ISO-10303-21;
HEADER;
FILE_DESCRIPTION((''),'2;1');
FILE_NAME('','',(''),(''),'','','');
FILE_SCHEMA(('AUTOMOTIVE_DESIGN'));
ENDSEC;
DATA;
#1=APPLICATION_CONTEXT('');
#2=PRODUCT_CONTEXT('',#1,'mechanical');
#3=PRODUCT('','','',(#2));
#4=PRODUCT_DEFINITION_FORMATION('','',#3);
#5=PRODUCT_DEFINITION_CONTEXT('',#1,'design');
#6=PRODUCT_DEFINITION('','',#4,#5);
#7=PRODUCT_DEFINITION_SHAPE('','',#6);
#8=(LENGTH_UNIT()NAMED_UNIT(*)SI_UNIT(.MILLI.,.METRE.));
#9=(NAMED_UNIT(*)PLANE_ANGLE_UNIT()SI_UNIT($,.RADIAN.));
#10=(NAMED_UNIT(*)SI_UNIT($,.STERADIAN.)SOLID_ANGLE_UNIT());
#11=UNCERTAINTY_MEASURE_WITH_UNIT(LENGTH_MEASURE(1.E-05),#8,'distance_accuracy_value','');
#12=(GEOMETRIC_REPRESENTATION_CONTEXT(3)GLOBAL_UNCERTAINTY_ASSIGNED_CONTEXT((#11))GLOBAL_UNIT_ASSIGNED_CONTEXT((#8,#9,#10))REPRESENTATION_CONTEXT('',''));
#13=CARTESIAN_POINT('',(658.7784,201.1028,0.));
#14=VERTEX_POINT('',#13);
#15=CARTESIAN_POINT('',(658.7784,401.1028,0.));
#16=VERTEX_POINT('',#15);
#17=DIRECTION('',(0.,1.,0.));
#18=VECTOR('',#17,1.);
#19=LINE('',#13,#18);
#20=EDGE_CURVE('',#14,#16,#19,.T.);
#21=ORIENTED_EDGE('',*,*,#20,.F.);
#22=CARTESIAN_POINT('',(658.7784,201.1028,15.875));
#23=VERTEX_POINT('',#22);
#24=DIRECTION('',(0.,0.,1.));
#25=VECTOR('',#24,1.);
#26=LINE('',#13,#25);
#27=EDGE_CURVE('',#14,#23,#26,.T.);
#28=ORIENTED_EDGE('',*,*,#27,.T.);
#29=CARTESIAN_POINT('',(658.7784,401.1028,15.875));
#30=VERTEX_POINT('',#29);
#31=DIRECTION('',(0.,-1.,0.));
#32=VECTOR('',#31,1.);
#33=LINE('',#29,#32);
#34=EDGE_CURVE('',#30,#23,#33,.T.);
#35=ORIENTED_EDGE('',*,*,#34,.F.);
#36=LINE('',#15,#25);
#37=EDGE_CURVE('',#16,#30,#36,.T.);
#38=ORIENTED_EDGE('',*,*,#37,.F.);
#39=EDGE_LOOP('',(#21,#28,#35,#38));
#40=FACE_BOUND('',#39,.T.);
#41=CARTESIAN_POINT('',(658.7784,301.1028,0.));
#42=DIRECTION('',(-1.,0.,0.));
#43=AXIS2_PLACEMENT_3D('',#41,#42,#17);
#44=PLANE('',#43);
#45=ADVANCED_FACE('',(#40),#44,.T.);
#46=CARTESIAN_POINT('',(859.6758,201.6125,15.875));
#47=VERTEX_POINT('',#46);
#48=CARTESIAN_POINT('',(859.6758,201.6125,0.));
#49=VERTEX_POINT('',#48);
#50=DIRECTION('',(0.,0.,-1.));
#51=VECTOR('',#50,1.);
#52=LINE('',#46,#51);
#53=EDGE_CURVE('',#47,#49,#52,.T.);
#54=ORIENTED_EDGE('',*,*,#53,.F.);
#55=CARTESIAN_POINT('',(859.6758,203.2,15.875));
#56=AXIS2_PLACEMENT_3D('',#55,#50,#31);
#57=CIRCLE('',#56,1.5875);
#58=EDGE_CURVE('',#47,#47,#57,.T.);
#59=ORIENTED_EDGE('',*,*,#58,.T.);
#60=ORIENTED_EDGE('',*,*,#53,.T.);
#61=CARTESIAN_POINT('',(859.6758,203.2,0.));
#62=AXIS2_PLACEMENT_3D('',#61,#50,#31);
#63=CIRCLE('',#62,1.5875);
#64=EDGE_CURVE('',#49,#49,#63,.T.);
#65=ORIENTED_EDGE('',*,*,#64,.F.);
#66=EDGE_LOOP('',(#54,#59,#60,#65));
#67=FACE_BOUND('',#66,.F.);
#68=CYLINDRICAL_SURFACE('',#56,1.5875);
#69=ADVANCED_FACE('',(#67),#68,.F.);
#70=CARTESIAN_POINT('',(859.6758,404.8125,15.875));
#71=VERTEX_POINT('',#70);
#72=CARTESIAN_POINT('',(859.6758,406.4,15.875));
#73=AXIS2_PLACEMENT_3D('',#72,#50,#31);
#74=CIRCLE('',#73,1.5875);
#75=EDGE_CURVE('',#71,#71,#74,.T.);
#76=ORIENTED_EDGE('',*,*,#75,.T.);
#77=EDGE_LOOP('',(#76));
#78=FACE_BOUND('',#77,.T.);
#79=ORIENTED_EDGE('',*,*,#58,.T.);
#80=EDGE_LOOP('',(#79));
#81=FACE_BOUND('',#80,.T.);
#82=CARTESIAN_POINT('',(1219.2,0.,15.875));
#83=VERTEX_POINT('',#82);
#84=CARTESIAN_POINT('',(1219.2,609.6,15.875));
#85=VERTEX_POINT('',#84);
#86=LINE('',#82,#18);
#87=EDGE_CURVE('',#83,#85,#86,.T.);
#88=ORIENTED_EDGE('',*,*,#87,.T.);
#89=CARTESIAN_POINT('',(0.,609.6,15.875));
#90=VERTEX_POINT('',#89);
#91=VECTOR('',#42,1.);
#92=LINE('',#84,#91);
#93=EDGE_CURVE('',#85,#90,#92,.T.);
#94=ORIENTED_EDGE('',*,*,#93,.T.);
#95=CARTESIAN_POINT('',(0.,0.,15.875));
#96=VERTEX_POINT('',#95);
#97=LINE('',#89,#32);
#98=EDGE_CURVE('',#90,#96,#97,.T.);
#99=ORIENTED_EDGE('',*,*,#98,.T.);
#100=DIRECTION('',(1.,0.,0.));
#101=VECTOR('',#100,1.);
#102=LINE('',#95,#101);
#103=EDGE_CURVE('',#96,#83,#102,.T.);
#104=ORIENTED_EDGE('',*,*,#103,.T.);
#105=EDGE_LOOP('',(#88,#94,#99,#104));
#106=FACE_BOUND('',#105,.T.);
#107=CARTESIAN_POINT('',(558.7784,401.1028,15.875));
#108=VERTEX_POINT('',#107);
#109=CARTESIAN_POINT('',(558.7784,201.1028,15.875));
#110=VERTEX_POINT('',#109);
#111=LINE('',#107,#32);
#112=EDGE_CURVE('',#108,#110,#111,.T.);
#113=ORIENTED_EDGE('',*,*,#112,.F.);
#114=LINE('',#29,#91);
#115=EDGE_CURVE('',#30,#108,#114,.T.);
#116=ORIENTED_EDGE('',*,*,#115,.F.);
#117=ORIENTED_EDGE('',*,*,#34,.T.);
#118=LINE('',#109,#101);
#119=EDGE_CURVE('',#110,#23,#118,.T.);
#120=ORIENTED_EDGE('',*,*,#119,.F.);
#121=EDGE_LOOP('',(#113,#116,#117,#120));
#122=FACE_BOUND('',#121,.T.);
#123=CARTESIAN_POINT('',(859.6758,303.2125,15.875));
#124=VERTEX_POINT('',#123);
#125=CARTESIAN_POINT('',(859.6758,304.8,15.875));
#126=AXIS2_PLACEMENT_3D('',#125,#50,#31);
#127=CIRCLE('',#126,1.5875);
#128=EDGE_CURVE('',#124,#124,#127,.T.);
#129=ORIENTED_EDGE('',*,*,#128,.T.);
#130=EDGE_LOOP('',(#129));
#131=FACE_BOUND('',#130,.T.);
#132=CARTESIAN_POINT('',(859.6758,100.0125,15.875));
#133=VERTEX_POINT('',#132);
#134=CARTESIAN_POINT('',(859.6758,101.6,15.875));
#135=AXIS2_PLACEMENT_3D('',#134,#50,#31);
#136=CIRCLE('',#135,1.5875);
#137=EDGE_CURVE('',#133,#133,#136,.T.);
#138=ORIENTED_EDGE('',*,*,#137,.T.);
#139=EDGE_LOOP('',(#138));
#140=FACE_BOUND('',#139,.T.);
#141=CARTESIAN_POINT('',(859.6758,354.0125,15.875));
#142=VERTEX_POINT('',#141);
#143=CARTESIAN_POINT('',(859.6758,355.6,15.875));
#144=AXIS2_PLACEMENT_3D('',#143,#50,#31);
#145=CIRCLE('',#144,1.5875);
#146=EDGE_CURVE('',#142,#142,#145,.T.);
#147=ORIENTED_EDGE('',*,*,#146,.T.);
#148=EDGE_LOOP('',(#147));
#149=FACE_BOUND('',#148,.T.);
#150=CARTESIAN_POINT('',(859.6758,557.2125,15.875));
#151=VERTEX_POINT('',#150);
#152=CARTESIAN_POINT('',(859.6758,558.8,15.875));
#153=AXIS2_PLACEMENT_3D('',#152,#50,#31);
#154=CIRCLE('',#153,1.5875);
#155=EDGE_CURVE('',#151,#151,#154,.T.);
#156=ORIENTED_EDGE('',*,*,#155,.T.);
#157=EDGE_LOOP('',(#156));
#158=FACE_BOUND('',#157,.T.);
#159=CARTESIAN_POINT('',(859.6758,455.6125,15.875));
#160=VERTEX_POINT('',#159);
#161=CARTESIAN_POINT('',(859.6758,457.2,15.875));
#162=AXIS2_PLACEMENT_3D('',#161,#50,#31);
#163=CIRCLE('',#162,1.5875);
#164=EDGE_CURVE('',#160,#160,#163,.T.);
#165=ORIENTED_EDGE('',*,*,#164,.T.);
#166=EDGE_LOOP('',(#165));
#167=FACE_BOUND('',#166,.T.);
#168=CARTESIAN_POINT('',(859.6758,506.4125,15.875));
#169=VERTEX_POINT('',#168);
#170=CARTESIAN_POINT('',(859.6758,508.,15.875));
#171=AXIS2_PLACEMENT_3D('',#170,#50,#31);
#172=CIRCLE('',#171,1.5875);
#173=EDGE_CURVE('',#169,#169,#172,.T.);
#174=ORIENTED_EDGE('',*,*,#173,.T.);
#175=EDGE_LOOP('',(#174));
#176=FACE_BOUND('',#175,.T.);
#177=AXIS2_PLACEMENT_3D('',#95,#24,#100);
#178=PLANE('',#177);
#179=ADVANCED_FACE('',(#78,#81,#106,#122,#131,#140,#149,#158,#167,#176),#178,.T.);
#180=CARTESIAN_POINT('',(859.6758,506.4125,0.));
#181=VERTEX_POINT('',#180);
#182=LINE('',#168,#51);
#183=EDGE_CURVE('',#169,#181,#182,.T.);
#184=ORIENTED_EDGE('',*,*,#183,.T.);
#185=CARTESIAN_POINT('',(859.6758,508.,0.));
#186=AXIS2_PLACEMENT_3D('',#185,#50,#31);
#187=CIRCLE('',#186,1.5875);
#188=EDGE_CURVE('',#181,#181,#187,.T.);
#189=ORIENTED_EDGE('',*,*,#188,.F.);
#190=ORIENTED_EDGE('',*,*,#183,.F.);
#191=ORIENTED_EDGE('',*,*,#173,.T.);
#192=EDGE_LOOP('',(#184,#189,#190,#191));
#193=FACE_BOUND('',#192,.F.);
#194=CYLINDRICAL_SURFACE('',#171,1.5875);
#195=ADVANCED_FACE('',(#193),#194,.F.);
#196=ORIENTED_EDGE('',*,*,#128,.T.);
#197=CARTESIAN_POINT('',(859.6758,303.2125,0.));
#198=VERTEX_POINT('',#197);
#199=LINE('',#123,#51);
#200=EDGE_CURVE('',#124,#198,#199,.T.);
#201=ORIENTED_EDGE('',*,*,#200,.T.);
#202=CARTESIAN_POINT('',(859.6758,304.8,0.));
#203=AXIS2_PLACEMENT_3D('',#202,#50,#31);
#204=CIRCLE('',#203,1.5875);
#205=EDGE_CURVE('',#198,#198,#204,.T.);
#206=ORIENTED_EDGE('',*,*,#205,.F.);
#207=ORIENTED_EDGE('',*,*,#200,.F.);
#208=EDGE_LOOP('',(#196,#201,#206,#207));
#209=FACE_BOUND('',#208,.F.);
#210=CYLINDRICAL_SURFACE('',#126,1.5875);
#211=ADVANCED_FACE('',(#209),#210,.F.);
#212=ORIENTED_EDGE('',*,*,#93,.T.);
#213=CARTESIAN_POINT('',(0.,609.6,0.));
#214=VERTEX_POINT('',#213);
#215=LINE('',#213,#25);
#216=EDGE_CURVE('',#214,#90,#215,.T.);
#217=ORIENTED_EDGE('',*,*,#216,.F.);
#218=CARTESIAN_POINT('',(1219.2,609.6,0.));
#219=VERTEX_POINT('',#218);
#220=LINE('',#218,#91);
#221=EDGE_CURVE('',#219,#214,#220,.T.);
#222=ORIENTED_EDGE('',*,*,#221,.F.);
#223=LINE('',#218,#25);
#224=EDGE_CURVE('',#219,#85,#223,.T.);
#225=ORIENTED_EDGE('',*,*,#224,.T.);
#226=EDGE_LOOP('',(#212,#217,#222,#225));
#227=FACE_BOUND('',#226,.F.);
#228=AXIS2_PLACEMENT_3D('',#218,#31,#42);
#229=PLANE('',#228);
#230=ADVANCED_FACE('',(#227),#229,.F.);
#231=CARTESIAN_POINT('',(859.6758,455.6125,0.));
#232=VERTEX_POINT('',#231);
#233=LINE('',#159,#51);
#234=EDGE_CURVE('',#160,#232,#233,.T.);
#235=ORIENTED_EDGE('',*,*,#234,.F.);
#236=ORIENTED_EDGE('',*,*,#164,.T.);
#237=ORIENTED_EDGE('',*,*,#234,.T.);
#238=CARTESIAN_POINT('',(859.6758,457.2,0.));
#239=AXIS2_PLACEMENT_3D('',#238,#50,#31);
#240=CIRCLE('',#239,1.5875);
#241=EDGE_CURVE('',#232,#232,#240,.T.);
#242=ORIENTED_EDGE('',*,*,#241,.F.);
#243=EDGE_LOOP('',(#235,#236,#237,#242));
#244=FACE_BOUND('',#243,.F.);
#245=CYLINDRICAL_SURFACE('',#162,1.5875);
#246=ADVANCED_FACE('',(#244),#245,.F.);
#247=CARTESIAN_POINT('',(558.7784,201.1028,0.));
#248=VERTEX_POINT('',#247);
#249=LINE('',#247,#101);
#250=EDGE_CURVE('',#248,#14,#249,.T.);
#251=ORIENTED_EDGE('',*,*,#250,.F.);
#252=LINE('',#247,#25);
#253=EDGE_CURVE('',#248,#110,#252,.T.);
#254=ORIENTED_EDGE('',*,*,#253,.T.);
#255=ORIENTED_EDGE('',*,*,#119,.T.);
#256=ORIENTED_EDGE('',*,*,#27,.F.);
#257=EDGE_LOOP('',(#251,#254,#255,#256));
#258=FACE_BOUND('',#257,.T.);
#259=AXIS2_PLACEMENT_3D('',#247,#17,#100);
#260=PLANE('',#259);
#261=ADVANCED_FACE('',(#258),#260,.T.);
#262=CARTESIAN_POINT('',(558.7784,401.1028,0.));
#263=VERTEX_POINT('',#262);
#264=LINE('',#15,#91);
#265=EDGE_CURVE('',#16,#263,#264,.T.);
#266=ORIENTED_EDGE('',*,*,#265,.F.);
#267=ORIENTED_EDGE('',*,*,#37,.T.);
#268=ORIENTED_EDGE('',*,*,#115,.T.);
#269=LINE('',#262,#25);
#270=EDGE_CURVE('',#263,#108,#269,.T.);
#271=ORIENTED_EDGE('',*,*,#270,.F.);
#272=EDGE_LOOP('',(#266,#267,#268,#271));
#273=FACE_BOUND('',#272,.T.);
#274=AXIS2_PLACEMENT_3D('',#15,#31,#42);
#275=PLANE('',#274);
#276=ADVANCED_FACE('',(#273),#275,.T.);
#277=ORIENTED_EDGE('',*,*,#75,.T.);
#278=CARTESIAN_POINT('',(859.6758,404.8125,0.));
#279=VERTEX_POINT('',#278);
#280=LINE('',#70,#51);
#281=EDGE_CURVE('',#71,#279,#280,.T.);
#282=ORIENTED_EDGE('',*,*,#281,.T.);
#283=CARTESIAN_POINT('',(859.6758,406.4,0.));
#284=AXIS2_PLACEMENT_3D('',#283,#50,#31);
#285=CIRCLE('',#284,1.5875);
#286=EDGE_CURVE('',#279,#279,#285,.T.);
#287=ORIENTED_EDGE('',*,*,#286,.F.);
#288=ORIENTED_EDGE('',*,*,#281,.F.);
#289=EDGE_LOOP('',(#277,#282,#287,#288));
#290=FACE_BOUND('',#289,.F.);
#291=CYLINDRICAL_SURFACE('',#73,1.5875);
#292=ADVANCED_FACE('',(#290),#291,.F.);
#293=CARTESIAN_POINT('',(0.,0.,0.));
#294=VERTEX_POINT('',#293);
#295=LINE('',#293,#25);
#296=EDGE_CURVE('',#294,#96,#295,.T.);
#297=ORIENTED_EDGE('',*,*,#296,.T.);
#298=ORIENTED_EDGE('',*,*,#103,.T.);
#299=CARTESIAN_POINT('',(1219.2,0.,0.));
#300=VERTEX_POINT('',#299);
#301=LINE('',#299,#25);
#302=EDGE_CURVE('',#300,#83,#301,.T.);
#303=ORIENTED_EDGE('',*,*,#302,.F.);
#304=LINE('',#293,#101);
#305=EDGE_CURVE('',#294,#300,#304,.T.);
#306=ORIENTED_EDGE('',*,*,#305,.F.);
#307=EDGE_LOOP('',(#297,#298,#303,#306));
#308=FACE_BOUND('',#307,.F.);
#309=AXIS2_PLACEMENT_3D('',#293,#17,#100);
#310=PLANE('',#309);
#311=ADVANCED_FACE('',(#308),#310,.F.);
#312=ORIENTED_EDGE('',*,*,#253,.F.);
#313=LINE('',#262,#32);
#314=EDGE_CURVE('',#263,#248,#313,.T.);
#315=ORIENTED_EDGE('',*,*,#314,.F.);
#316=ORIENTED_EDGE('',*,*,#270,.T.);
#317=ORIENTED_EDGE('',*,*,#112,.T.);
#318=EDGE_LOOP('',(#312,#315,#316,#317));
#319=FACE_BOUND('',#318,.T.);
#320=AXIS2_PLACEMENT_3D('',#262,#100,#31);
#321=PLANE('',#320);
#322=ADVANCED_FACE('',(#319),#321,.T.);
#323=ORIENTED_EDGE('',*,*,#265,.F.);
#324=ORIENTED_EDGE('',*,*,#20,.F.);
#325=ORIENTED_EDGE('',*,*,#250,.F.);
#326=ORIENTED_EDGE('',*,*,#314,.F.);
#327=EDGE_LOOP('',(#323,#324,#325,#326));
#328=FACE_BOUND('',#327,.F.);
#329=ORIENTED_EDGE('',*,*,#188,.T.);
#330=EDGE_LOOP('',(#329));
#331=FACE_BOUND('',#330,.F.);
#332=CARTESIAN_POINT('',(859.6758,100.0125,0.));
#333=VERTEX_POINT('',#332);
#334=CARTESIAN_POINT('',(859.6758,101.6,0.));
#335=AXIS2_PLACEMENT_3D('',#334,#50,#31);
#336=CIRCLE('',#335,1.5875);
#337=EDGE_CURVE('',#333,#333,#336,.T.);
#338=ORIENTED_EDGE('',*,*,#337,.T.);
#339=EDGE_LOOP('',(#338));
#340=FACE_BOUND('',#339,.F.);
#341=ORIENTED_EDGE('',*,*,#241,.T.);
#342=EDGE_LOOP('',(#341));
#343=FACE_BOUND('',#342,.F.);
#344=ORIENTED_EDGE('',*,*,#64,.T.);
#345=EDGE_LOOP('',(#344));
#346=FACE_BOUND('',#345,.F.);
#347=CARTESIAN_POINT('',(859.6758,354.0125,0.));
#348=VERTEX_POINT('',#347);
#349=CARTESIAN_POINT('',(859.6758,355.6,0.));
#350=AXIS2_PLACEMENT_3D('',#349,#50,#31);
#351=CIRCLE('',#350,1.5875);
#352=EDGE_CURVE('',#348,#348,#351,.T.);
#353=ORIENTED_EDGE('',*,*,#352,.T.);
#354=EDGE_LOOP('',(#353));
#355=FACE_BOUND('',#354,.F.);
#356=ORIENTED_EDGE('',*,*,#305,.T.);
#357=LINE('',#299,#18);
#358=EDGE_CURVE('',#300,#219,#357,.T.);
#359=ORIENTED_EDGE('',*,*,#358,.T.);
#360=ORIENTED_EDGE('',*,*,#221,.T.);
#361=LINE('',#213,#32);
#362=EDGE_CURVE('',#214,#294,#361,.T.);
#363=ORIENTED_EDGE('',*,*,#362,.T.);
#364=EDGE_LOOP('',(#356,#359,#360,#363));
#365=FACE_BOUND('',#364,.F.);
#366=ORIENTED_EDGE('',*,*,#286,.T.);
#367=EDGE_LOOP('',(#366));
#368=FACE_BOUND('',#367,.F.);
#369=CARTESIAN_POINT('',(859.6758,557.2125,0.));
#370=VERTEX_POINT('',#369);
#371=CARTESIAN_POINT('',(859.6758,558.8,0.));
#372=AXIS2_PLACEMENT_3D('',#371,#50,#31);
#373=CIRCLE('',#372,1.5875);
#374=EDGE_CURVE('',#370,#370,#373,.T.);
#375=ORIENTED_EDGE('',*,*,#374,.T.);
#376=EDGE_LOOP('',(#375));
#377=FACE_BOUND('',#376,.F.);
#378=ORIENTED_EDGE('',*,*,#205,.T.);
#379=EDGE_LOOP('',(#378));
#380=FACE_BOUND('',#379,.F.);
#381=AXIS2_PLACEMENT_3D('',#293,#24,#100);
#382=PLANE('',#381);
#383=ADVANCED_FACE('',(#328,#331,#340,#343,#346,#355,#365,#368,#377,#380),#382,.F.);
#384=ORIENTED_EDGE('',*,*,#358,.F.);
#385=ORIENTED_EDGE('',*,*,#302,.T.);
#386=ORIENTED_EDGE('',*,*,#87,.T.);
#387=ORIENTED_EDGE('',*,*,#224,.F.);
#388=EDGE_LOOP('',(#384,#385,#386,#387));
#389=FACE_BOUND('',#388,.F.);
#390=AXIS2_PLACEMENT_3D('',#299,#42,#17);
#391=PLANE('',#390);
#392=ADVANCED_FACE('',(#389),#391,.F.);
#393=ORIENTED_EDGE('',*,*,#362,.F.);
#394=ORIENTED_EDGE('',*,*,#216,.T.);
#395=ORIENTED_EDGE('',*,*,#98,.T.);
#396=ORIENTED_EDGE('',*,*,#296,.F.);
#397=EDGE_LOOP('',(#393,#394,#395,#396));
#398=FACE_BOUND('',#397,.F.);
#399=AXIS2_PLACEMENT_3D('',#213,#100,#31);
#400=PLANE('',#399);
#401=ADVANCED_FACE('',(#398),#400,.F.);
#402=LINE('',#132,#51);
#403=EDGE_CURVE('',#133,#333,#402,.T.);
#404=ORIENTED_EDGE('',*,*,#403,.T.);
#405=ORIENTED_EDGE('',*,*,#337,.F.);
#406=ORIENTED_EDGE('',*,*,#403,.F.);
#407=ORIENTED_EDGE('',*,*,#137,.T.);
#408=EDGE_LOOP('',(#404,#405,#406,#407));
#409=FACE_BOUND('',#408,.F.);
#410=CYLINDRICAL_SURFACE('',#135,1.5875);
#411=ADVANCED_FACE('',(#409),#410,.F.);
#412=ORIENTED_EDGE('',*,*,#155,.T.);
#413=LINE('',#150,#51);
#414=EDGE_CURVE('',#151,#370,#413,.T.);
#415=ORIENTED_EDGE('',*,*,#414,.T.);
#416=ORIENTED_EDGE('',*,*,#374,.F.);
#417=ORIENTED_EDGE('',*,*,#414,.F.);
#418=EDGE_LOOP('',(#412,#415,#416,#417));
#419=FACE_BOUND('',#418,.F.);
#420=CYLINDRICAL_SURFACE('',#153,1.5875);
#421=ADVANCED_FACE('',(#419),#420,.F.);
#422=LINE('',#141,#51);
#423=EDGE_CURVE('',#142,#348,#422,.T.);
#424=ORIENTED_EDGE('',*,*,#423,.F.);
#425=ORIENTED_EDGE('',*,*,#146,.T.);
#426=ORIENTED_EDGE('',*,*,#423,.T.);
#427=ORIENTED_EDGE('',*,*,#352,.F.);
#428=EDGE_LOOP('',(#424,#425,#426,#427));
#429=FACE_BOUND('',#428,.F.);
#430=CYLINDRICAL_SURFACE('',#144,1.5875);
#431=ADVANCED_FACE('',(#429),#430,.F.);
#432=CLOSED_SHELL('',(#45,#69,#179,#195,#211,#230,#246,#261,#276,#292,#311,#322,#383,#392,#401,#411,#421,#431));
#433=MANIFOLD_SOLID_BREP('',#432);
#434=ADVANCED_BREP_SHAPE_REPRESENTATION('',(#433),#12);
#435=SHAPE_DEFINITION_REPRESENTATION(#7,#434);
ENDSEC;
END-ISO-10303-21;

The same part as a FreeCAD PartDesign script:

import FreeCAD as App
import Part
import Sketcher
from FreeCAD import Vector
Q = App.Units.Quantity

doc = App.newDocument("Part")
params = doc.addObject("Spreadsheet::Sheet", "Params")
for row, (alias, value) in enumerate([
    ("sketch1_width", "48 in"),
    ("sketch1_height", "24 in"),
    ("sketch1_width2", "3.937 in"),
    ("pad1_length", "0.625 in"),
    ("sketch2_diameter", "0.125 in"),
    ("hole_diameter", "0.125 in"),
], start=1):
    params.set(f"A{row}", alias)
    params.set(f"B{row}", "=" + value)
    params.setAlias(f"B{row}", alias)

body = doc.addObject("PartDesign::Body", "Body")

# Sketch on XY plane
sketch1 = body.newObject("Sketcher::SketchObject", "Sketch")
sketch1.AttachmentSupport = (doc.getObject("XY_Plane"), [""])
sketch1.MapMode = "FlatFace"
sketch1.addGeometry([
    Part.LineSegment(Vector(0, 610, 0), Vector(0, 0, 0)),  # 0
    Part.LineSegment(Vector(0, 0, 0), Vector(1219, 0, 0)),  # 1
    Part.LineSegment(Vector(1219, 0, 0), Vector(1219, 610, 0)),  # 2
    Part.LineSegment(Vector(1219, 610, 0), Vector(0, 610, 0)),  # 3
    Part.LineSegment(Vector(659, 401, 0), Vector(659, 201, 0)),  # 4
    Part.LineSegment(Vector(659, 201, 0), Vector(559, 201, 0)),  # 5
    Part.LineSegment(Vector(559, 201, 0), Vector(559, 401, 0)),  # 6
    Part.LineSegment(Vector(559, 401, 0), Vector(659, 401, 0)),  # 7
], False)
sketch1.addConstraint([
    Sketcher.Constraint("Coincident", 0, 2, 1, 1),
    Sketcher.Constraint("Coincident", 1, 2, 2, 1),
    Sketcher.Constraint("Coincident", 2, 2, 3, 1),
    Sketcher.Constraint("Coincident", 3, 2, 0, 1),
    Sketcher.Constraint("Coincident", 4, 2, 5, 1),
    Sketcher.Constraint("Coincident", 5, 2, 6, 1),
    Sketcher.Constraint("Coincident", 6, 2, 7, 1),
    Sketcher.Constraint("Coincident", 7, 2, 4, 1),
    Sketcher.Constraint("Vertical", 0),
    Sketcher.Constraint("Horizontal", 1),
    Sketcher.Constraint("Vertical", 2),
    Sketcher.Constraint("Horizontal", 3),
    Sketcher.Constraint("Vertical", 4),
    Sketcher.Constraint("Horizontal", 5),
    Sketcher.Constraint("Vertical", 6),
    Sketcher.Constraint("Horizontal", 7),
    Sketcher.Constraint("Coincident", 0, 2, -1, 1),
    Sketcher.Constraint("DistanceX", 1, 1, 1, 2, Q("48 in")),
    Sketcher.Constraint("DistanceY", 0, 2, 0, 1, Q("24 in")),
    Sketcher.Constraint("DistanceX", 5, 2, 5, 1, Q("3.937 in")),
    Sketcher.Constraint("DistanceY", 4, 2, 4, 1, Q("200 mm")),
    Sketcher.Constraint("DistanceX", -1, 1, 4, 2, Q("658.7784 mm")),
    Sketcher.Constraint("DistanceY", -1, 1, 4, 2, Q("201.1028 mm")),
])
sketch1.setExpression("Constraints[17]", "Params.sketch1_width")
sketch1.setExpression("Constraints[18]", "Params.sketch1_height")
sketch1.setExpression("Constraints[19]", "Params.sketch1_width2")
pad1 = body.newObject("PartDesign::Pad", "Pad")
pad1.Profile = sketch1
pad1.setExpression("Length", "Params.pad1_length")

# Sketch on XY plane
sketch2 = body.newObject("Sketcher::SketchObject", "Sketch001")
sketch2.AttachmentSupport = (doc.getObject("XY_Plane"), [""])
sketch2.MapMode = "FlatFace"
sketch2.AttachmentOffset = App.Placement(Vector(0, 0, 0.625 * 25.4), App.Rotation())
sketch2.addGeometry([
    Part.Circle(Vector(859.7, 101.6, 0), Vector(0, 0, 1), 1.6),  # 0
    Part.Circle(Vector(859.7, 203.2, 0), Vector(0, 0, 1), 1.6),  # 1
    Part.Circle(Vector(859.7, 304.8, 0), Vector(0, 0, 1), 1.6),  # 2
    Part.Circle(Vector(859.7, 355.6, 0), Vector(0, 0, 1), 1.6),  # 3
    Part.Circle(Vector(859.7, 406.4, 0), Vector(0, 0, 1), 1.6),  # 4
    Part.Circle(Vector(859.7, 457.2, 0), Vector(0, 0, 1), 1.6),  # 5
    Part.Circle(Vector(859.7, 508, 0), Vector(0, 0, 1), 1.6),  # 6
    Part.Circle(Vector(859.7, 558.8, 0), Vector(0, 0, 1), 1.6),  # 7
], False)
sketch2.addConstraint([
    Sketcher.Constraint("Equal", 0, 1),
    Sketcher.Constraint("Equal", 1, 2),
    Sketcher.Constraint("Equal", 2, 3),
    Sketcher.Constraint("Equal", 3, 4),
    Sketcher.Constraint("Equal", 4, 5),
    Sketcher.Constraint("Equal", 5, 6),
    Sketcher.Constraint("Equal", 6, 7),
    Sketcher.Constraint("Vertical", 0, 3, 1, 3),
    Sketcher.Constraint("Vertical", 1, 3, 2, 3),
    Sketcher.Constraint("Vertical", 2, 3, 3, 3),
    Sketcher.Constraint("Vertical", 3, 3, 4, 3),
    Sketcher.Constraint("Vertical", 4, 3, 5, 3),
    Sketcher.Constraint("Vertical", 5, 3, 6, 3),
    Sketcher.Constraint("Vertical", 6, 3, 7, 3),
    Sketcher.Constraint("Diameter", 0, Q("0.125 in")),
    Sketcher.Constraint("DistanceY", -1, 1, 0, 3, Q("4 in")),
    Sketcher.Constraint("DistanceY", -1, 1, 1, 3, Q("8 in")),
    Sketcher.Constraint("DistanceY", -1, 1, 2, 3, Q("12 in")),
    Sketcher.Constraint("DistanceY", -1, 1, 3, 3, Q("14 in")),
    Sketcher.Constraint("DistanceY", -1, 1, 4, 3, Q("16 in")),
    Sketcher.Constraint("DistanceY", -1, 1, 5, 3, Q("18 in")),
    Sketcher.Constraint("DistanceY", -1, 1, 6, 3, Q("20 in")),
    Sketcher.Constraint("DistanceY", -1, 1, 7, 3, Q("22 in")),
    Sketcher.Constraint("DistanceX", -1, 1, 0, 3, Q("33.8455 in")),
])
sketch2.setExpression("Constraints[14]", "Params.sketch2_diameter")
doc.recompute()
hole = body.newObject("PartDesign::Hole", "Hole")
hole.Profile = sketch2
hole.ThreadType = "None"
hole.setExpression("Diameter", "Params.hole_diameter")
hole.DepthType = "ThroughAll"

doc.recompute()
